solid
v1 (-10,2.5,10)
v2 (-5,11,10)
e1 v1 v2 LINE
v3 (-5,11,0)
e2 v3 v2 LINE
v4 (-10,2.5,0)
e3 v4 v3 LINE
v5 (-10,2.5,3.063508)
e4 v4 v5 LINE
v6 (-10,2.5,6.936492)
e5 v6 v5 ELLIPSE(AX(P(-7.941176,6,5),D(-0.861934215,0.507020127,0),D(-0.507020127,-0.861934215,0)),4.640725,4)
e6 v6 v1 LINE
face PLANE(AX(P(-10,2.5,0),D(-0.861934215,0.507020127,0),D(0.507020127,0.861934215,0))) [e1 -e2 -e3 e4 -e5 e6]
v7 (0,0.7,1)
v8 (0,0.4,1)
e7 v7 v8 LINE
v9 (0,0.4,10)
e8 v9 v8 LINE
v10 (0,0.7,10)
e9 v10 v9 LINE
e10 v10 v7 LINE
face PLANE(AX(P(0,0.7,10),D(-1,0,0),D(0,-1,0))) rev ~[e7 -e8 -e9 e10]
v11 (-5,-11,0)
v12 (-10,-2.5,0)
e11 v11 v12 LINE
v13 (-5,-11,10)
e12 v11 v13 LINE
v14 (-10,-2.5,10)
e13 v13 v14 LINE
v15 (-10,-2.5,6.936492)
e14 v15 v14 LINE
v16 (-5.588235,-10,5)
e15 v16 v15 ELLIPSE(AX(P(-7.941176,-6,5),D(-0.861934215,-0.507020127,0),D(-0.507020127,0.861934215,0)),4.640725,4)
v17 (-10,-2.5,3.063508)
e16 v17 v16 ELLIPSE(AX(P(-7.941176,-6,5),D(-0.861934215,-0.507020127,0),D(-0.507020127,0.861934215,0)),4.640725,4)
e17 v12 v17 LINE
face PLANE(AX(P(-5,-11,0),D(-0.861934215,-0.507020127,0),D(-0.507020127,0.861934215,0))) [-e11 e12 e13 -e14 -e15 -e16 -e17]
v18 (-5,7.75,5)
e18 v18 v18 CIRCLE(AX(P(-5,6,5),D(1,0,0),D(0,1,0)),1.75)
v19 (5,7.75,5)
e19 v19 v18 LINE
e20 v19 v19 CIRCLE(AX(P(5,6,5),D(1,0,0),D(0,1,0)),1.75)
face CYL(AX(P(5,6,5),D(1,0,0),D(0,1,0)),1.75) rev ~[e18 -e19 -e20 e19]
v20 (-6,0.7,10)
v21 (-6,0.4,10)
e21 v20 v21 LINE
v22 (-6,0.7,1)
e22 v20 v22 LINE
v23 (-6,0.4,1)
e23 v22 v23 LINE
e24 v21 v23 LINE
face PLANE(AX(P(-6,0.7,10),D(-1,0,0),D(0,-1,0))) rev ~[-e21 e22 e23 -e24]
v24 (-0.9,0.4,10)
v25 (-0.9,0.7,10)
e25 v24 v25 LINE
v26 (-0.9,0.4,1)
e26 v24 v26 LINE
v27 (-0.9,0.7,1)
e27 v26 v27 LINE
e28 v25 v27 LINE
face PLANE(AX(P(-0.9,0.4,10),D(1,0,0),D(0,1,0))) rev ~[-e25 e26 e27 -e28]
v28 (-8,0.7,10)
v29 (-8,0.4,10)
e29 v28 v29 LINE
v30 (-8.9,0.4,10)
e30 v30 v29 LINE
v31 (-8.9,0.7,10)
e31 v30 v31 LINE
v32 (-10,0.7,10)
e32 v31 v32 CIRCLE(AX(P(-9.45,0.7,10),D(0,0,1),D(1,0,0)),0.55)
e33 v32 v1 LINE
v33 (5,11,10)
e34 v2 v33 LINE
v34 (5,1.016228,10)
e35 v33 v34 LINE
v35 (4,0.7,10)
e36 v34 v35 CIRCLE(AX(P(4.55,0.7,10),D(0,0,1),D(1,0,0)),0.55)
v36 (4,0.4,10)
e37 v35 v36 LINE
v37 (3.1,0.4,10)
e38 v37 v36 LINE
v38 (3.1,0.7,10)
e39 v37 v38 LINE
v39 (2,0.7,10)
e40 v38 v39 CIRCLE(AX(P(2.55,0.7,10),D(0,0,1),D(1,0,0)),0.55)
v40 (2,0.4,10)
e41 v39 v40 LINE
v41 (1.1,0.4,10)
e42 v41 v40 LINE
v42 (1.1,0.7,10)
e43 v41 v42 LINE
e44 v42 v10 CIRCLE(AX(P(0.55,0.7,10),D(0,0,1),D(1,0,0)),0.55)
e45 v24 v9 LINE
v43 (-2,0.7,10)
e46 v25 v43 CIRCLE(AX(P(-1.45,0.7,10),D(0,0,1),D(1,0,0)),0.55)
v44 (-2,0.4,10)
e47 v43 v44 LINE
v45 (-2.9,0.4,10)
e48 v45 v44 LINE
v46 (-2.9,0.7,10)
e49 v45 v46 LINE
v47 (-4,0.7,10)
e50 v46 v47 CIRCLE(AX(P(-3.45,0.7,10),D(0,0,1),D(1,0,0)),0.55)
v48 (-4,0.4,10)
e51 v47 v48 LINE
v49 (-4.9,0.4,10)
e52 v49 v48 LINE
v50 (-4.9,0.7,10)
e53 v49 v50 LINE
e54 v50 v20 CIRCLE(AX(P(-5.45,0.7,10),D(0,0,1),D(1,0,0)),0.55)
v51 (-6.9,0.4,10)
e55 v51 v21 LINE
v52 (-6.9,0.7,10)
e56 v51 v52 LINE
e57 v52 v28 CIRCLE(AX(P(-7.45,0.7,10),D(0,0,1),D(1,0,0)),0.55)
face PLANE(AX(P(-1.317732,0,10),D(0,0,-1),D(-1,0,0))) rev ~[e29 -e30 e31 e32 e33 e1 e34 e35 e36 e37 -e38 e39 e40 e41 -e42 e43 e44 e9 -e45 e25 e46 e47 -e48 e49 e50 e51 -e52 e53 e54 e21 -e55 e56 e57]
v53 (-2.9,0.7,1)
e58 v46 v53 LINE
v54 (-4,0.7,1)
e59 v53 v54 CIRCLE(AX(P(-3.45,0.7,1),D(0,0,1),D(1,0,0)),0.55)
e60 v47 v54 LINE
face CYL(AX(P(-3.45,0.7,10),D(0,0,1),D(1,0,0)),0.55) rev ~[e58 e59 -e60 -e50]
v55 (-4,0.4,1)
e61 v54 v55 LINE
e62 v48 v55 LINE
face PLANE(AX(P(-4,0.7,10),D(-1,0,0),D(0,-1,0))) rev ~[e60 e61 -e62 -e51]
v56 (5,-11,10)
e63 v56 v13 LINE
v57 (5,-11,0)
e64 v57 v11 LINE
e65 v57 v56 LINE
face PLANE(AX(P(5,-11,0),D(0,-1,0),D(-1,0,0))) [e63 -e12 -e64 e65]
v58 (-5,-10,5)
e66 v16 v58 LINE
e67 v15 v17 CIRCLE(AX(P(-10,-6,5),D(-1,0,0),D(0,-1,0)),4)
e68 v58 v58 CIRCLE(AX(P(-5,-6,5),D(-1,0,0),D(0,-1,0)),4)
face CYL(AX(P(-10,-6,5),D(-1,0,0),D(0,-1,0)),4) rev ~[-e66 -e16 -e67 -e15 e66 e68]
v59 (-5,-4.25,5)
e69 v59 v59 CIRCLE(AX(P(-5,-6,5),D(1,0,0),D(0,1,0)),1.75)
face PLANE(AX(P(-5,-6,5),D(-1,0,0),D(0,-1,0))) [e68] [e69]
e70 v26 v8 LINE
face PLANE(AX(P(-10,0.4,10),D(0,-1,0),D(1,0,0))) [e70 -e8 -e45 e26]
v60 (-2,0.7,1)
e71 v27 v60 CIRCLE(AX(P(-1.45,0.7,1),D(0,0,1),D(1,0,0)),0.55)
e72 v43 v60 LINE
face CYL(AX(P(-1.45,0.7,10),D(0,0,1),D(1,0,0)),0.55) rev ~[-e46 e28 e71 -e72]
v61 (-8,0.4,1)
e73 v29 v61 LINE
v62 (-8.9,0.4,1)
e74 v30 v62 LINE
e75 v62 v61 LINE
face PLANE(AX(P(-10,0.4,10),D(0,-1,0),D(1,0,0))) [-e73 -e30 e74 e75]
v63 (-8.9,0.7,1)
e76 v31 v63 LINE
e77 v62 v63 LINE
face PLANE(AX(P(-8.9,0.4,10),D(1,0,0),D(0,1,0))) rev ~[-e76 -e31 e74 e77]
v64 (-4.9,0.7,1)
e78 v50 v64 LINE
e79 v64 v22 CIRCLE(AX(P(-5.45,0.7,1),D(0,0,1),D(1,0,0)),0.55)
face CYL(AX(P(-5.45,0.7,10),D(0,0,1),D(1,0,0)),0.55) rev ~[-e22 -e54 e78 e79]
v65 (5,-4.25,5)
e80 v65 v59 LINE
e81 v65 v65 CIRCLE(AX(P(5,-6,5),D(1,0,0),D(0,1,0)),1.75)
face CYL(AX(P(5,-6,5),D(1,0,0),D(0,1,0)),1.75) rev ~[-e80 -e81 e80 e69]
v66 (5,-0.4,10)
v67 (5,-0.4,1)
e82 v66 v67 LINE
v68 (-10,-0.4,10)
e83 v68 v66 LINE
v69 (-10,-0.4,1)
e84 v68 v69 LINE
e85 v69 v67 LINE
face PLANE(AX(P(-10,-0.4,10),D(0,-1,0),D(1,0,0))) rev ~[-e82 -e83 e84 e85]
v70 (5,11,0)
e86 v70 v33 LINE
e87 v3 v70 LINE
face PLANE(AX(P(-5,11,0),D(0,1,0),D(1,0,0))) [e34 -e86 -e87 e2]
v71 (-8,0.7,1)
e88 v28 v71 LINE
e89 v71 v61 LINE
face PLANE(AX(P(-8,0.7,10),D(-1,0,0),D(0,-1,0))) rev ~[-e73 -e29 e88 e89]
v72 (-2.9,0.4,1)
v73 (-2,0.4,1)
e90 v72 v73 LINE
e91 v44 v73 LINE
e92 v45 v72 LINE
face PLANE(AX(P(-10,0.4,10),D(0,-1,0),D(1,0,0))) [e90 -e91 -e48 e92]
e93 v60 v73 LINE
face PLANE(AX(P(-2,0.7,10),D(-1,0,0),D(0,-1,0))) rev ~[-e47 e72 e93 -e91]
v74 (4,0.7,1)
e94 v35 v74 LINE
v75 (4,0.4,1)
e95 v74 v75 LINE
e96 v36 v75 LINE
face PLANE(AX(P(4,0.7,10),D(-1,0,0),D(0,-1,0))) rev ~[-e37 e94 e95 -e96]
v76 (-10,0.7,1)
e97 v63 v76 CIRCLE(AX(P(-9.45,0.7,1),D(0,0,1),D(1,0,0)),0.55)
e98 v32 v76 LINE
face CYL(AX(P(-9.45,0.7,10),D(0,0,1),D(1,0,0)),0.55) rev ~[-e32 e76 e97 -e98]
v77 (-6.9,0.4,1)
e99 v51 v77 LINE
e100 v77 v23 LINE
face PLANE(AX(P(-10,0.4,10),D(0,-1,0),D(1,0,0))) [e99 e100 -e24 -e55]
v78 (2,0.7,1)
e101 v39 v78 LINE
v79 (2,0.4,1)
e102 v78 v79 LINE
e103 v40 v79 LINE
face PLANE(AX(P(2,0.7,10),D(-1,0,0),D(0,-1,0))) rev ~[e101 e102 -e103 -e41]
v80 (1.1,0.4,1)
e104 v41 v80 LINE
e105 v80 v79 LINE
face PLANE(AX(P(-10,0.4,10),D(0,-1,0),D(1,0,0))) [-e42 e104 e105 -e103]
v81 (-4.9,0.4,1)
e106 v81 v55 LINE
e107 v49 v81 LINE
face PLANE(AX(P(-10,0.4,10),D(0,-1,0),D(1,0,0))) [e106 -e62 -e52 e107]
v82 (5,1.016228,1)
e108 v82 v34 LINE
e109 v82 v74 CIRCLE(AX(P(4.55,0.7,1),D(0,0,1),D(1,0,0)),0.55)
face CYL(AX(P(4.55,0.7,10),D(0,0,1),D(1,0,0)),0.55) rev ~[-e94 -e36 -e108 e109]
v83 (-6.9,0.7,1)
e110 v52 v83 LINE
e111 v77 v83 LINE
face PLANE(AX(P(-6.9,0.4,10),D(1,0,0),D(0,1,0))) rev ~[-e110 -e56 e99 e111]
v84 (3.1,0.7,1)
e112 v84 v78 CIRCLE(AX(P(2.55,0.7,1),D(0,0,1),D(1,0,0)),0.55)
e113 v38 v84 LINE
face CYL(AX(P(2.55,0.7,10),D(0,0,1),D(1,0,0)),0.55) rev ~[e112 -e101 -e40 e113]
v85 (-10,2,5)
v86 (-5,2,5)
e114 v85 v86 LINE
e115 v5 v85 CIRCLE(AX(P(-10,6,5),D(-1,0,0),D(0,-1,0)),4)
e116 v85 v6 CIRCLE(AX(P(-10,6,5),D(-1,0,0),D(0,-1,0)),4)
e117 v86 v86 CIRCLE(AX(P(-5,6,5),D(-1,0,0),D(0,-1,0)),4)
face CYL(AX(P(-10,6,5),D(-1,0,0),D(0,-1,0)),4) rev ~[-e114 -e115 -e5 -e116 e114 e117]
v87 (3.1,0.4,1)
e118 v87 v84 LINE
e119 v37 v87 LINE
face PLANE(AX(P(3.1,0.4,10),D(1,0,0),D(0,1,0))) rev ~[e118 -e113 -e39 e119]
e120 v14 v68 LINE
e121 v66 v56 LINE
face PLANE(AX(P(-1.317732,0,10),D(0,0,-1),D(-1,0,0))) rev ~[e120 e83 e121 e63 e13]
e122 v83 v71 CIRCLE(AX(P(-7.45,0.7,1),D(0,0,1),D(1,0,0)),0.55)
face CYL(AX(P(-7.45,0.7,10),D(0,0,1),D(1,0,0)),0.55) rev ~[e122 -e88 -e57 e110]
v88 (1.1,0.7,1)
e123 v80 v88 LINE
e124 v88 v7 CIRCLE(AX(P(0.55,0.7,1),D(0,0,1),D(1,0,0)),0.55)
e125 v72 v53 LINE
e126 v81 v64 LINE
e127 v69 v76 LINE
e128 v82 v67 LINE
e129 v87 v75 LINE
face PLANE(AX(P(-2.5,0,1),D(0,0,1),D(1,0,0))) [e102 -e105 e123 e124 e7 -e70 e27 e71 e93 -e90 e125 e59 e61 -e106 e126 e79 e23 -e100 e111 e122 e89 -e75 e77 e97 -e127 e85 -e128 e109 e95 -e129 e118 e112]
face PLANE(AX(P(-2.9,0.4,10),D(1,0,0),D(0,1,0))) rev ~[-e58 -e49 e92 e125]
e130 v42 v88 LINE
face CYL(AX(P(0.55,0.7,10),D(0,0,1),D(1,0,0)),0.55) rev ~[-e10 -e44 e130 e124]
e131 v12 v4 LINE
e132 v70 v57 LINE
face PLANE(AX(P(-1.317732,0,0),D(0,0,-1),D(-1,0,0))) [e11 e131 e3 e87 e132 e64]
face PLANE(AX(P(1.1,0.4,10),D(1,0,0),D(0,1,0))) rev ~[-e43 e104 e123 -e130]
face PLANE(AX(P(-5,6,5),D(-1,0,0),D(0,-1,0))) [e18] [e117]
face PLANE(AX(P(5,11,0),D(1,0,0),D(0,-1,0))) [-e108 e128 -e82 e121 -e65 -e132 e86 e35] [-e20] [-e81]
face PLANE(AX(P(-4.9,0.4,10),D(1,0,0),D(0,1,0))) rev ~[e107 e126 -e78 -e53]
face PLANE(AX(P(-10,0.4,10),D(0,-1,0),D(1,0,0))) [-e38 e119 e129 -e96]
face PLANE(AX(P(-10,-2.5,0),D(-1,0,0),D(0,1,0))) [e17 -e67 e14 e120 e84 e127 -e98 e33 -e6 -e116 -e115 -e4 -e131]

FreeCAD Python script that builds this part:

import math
import FreeCAD as App
import Part
import Sketcher

V = App.Vector
Q = App.Units.Quantity


def add_polygon(sketch, points):
    """Adds a closed chain of lines whose ends are joined by coincident constraints."""
    first, n = sketch.GeometryCount, len(points)
    for a, b in zip(points, points[1:] + points[:1]):
        sketch.addGeometry(Part.LineSegment(App.Vector(*a, 0), App.Vector(*b, 0)), False)
    for i in range(n):
        sketch.addConstraint(Sketcher.Constraint("Coincident", first + i, 2, first + (i + 1) % n, 1))

doc = App.newDocument("Part")
params = doc.addObject("Spreadsheet::Sheet", "Params")
for row, (alias, value) in enumerate([
    ("sketch1_width", "10 mm"),
    ("sketch1_height", "5 mm"),
    ("sketch1_height2", "22 mm"),
    ("pad1_length", "10 mm"),
    ("sketch2_diameter", "3.5 mm"),
    ("sketch3_diameter", "8 mm"),
    ("pocket2_length", "5 mm"),
    ("sketch4_width", "15 mm"),
    ("sketch4_height", "0.8 mm"),
    ("pocket3_length", "9 mm"),
    ("sketch5_radius", "0.55 mm"),
    ("sketch5_height", "0.3 mm"),
    ("pocket4_length", "9 mm"),
    ("linearpattern_pitch", "2 mm"),
], start=1):
    params.set(f"A{row}", alias)
    params.set(f"B{row}", "=" + value)
    params.setAlias(f"B{row}", alias)

body = doc.addObject("PartDesign::Body", "Body")

# Sketch on XY plane
sketch1 = body.newObject("Sketcher::SketchObject", "Sketch")
sketch1.AttachmentSupport = (doc.getObject("XY_Plane"), [""])
sketch1.MapMode = "FlatFace"
add_polygon(sketch1, [(5, 11), (-5, 11), (-10, 2), (-10, -2), (-5, -11), (5, -11)])  # lines 0-5
sketch1.addConstraint([
    Sketcher.Constraint("Horizontal", 0),
    Sketcher.Constraint("Vertical", 2),
    Sketcher.Constraint("Horizontal", 4),
    Sketcher.Constraint("Vertical", 5),
    Sketcher.Constraint("Symmetric", 0, 2, 4, 2, -1, 1),
    Sketcher.Constraint("Vertical", 0, 2, 3, 2),
    Sketcher.Constraint("Equal", 1, 3),
    Sketcher.Constraint("DistanceX", 0, 2, 0, 1, Q("10 mm")),
    Sketcher.Constraint("DistanceY", 2, 2, 2, 1, Q("5 mm")),
    Sketcher.Constraint("DistanceY", 5, 1, 5, 2, Q("22 mm")),
    Sketcher.Constraint("DistanceX", 1, 2, -1, 1, Q("10 mm")),
])
sketch1.setExpression("Constraints[13]", "Params.sketch1_width")
sketch1.setExpression("Constraints[14]", "Params.sketch1_height")
sketch1.setExpression("Constraints[15]", "Params.sketch1_height2")
pad1 = body.newObject("PartDesign::Pad", "Pad")
pad1.Profile = sketch1
pad1.setExpression("Length", "Params.pad1_length")

# Sketch on YZ plane
sketch2 = body.newObject("Sketcher::SketchObject", "Sketch001")
sketch2.AttachmentSupport = (doc.getObject("YZ_Plane"), [""])
sketch2.MapMode = "FlatFace"
sketch2.AttachmentOffset = App.Placement(V(0, 0, 5), App.Rotation())
sketch2.addGeometry([
    Part.Circle(V(-6, 5, 0), V(0, 0, 1), 1.8),
    Part.Circle(V(6, 5, 0), V(0, 0, 1), 1.8),
], False)
sketch2.addConstraint([
    Sketcher.Constraint("Equal", 0, 1),
    Sketcher.Constraint("Symmetric", 0, 3, 1, 3, -2),
    Sketcher.Constraint("Diameter", 0, Q("3.5 mm")),
    Sketcher.Constraint("DistanceX", 0, 3, -1, 1, Q("6 mm")),
    Sketcher.Constraint("DistanceY", -1, 1, 0, 3, Q("5 mm")),
])
sketch2.setExpression("Constraints[2]", "Params.sketch2_diameter")
pocket1 = body.newObject("PartDesign::Pocket", "Pocket")
pocket1.Profile = sketch2
pocket1.Type = "ThroughAll"

# Sketch on YZ plane
sketch3 = body.newObject("Sketcher::SketchObject", "Sketch002")
sketch3.AttachmentSupport = (doc.getObject("YZ_Plane"), [""])
sketch3.MapMode = "FlatFace"
sketch3.AttachmentOffset = App.Placement(V(0, 0, -10), App.Rotation())
sketch3.addGeometry([
    Part.Circle(V(6, 5, 0), V(0, 0, 1), 4),
    Part.Circle(V(-6, 5, 0), V(0, 0, 1), 4),
], False)
sketch3.addConstraint([
    Sketcher.Constraint("Equal", 0, 1),
    Sketcher.Constraint("Symmetric", 0, 3, 1, 3, -2),
    Sketcher.Constraint("Diameter", 0, Q("8 mm")),
    Sketcher.Constraint("DistanceX", -1, 1, 0, 3, Q("6 mm")),
    Sketcher.Constraint("DistanceY", -1, 1, 0, 3, Q("5 mm")),
])
sketch3.setExpression("Constraints[2]", "Params.sketch3_diameter")
pocket2 = body.newObject("PartDesign::Pocket", "Pocket001")
pocket2.Profile = sketch3
pocket2.setExpression("Length", "Params.pocket2_length")
pocket2.Reversed = True

# Sketch on XY plane
sketch4 = body.newObject("Sketcher::SketchObject", "Sketch003")
sketch4.AttachmentSupport = (doc.getObject("XY_Plane"), [""])
sketch4.MapMode = "FlatFace"
sketch4.AttachmentOffset = App.Placement(V(0, 0, 10), App.Rotation())
add_polygon(sketch4, [(-10, 0.4), (-10, -0.4), (5, -0.4), (5, 0.4)])  # lines 0-3
sketch4.addConstraint([
    Sketcher.Constraint("Vertical", 0),
    Sketcher.Constraint("Horizontal", 1),
    Sketcher.Constraint("Vertical", 2),
    Sketcher.Constraint("Horizontal", 3),
    Sketcher.Constraint("DistanceX", 1, 1, 1, 2, Q("15 mm")),
    Sketcher.Constraint("DistanceY", 0, 2, 0, 1, Q("0.8 mm")),
    Sketcher.Constraint("DistanceX", 0, 2, -1, 1, Q("10 mm")),
    Sketcher.Constraint("DistanceY", 0, 2, -1, 1, Q("0.4 mm")),
])
sketch4.setExpression("Constraints[8]", "Params.sketch4_width")
sketch4.setExpression("Constraints[9]", "Params.sketch4_height")
pocket3 = body.newObject("PartDesign::Pocket", "Pocket002")
pocket3.Profile = sketch4
pocket3.setExpression("Length", "Params.pocket3_length")

# Sketch on XY plane
sketch5 = body.newObject("Sketcher::SketchObject", "Sketch004")
sketch5.AttachmentSupport = (doc.getObject("XY_Plane"), [""])
sketch5.MapMode = "FlatFace"
sketch5.AttachmentOffset = App.Placement(V(0, 0, 10), App.Rotation())
sketch5.addGeometry([
    Part.ArcOfCircle(Part.Circle(V(-9.45, 0.7, 0), V(0, 0, 1), 0.55), math.radians(0), math.radians(180)),
    Part.LineSegment(V(-10, 0.7, 0), V(-10, 0.4, 0)),
    Part.LineSegment(V(-10, 0.4, 0), V(-8.9, 0.4, 0)),
    Part.LineSegment(V(-8.9, 0.4, 0), V(-8.9, 0.7, 0)),
], False)
sketch5.addConstraint([
    Sketcher.Constraint("Tangent", 0, 2, 1, 1),
    Sketcher.Constraint("Coincident", 1, 2, 2, 1),
    Sketcher.Constraint("Coincident", 2, 2, 3, 1),
    Sketcher.Constraint("Tangent", 3, 2, 0, 1),
    Sketcher.Constraint("Vertical", 1),
    Sketcher.Constraint("Horizontal", 2),
    Sketcher.Constraint("Vertical", 3),
    Sketcher.Constraint("Radius", 0, Q("0.55 mm")),
    Sketcher.Constraint("DistanceY", 1, 2, 1, 1, Q("0.3 mm")),
    Sketcher.Constraint("DistanceX", 0, 2, -1, 1, Q("10 mm")),
    Sketcher.Constraint("DistanceY", -1, 1, 0, 3, Q("0.7 mm")),
])
sketch5.setExpression("Constraints[7]", "Params.sketch5_radius")
sketch5.setExpression("Constraints[8]", "Params.sketch5_height")
pocket4 = body.newObject("PartDesign::Pocket", "Pocket003")
pocket4.Profile = sketch5
pocket4.setExpression("Length", "Params.pocket4_length")
doc.recompute()

linearpattern = body.newObject("PartDesign::LinearPattern", "LinearPattern")
linearpattern.Originals = [pocket4]
linearpattern.Direction = (doc.getObject("X_Axis"), [""])
linearpattern.Mode = "offset"
linearpattern.setExpression("Offset", "Params.linearpattern_pitch")
linearpattern.Occurrences = 8
body.Tip = linearpattern

doc.recompute()
